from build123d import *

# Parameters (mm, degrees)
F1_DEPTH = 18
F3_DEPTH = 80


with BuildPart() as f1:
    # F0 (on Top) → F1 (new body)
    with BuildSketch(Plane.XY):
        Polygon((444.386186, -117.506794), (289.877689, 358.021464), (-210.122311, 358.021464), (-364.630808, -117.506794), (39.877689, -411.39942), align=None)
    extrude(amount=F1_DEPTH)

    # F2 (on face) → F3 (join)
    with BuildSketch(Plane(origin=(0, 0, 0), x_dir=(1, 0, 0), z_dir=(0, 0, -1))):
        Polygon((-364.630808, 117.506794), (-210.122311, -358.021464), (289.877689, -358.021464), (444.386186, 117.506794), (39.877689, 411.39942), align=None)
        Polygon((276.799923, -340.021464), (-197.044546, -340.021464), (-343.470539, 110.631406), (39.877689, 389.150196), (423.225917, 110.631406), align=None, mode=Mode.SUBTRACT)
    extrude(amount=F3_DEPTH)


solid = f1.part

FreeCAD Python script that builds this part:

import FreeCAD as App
import Part
import Sketcher
Q = App.Units.Quantity

doc = App.newDocument("Part")
body = doc.addObject("PartDesign::Body", "Body")

# Sketch on XY plane
sketch1 = body.newObject("Sketcher::SketchObject", "Sketch")
sketch1.AttachmentSupport = (doc.getObject("XY_Plane"), [""])
sketch1.MapMode = "FlatFace"
sketch1.addGeometry(Part.LineSegment(App.Vector(444, -118, 0), App.Vector(290, 358, 0)), False)
sketch1.addGeometry(Part.LineSegment(App.Vector(290, 358, 0), App.Vector(-210, 358, 0)), False)
sketch1.addGeometry(Part.LineSegment(App.Vector(-210, 358, 0), App.Vector(-365, -118, 0)), False)
sketch1.addGeometry(Part.LineSegment(App.Vector(-365, -118, 0), App.Vector(40, -411, 0)), False)
sketch1.addGeometry(Part.LineSegment(App.Vector(40, -411, 0), App.Vector(444, -118, 0)), False)
sketch1.addConstraint(Sketcher.Constraint("Coincident", 0, 2, 1, 1))
sketch1.addConstraint(Sketcher.Constraint("Coincident", 1, 2, 2, 1))
sketch1.addConstraint(Sketcher.Constraint("Coincident", 2, 2, 3, 1))
sketch1.addConstraint(Sketcher.Constraint("Coincident", 3, 2, 4, 1))
sketch1.addConstraint(Sketcher.Constraint("Coincident", 4, 2, 0, 1))
sketch1.addConstraint(Sketcher.Constraint("Horizontal", 1))
sketch1.addConstraint(Sketcher.Constraint("Horizontal", 2, 2, 4, 2))
sketch1.addConstraint(Sketcher.Constraint("Equal", 0, 2))
sketch1.addConstraint(Sketcher.Constraint("Equal", 2, 3))
sketch1.addConstraint(Sketcher.Constraint("Equal", 3, 4))
sketch1.addConstraint(Sketcher.Constraint("DistanceX", 1, 2, 1, 1, Q("500 mm")))
sketch1.addConstraint(Sketcher.Constraint("Angle", 0, Q("108 deg")))
sketch1.addConstraint(Sketcher.Constraint("Angle", 3, Q("-36 deg")))
sketch1.addConstraint(Sketcher.Constraint("DistanceX", -1, 1, 0, 2, Q("289.877689 mm")))
sketch1.addConstraint(Sketcher.Constraint("DistanceY", 3, 2, -1, 1, Q("411.39942 mm")))
pad1 = body.newObject("PartDesign::Pad", "Pad")
pad1.Profile = sketch1
pad1.Length = 18

# Sketch on XY plane
sketch2 = body.newObject("Sketcher::SketchObject", "Sketch001")
sketch2.AttachmentSupport = (doc.getObject("XY_Plane"), [""])
sketch2.MapMode = "FlatFace"
sketch2.addGeometry(Part.LineSegment(App.Vector(-365, -118, 0), App.Vector(-210, 358, 0)), False)
sketch2.addGeometry(Part.LineSegment(App.Vector(-210, 358, 0), App.Vector(290, 358, 0)), False)
sketch2.addGeometry(Part.LineSegment(App.Vector(290, 358, 0), App.Vector(444, -118, 0)), False)
sketch2.addGeometry(Part.LineSegment(App.Vector(444, -118, 0), App.Vector(40, -411, 0)), False)
sketch2.addGeometry(Part.LineSegment(App.Vector(40, -411, 0), App.Vector(-365, -118, 0)), False)
sketch2.addGeometry(Part.LineSegment(App.Vector(423, -111, 0), App.Vector(277, 340, 0)), False)
sketch2.addGeometry(Part.LineSegment(App.Vector(277, 340, 0), App.Vector(-197, 340, 0)), False)
sketch2.addGeometry(Part.LineSegment(App.Vector(-197, 340, 0), App.Vector(-343, -111, 0)), False)
sketch2.addGeometry(Part.LineSegment(App.Vector(-343, -111, 0), App.Vector(40, -389, 0)), False)
sketch2.addGeometry(Part.LineSegment(App.Vector(40, -389, 0), App.Vector(423, -111, 0)), False)
sketch2.addConstraint(Sketcher.Constraint("Coincident", 0, 2, 1, 1))
sketch2.addConstraint(Sketcher.Constraint("Coincident", 1, 2, 2, 1))
sketch2.addConstraint(Sketcher.Constraint("Coincident", 2, 2, 3, 1))
sketch2.addConstraint(Sketcher.Constraint("Coincident", 3, 2, 4, 1))
sketch2.addConstraint(Sketcher.Constraint("Coincident", 4, 2, 0, 1))
sketch2.addConstraint(Sketcher.Constraint("Coincident", 5, 2, 6, 1))
sketch2.addConstraint(Sketcher.Constraint("Coincident", 6, 2, 7, 1))
sketch2.addConstraint(Sketcher.Constraint("Coincident", 7, 2, 8, 1))
sketch2.addConstraint(Sketcher.Constraint("Coincident", 8, 2, 9, 1))
sketch2.addConstraint(Sketcher.Constraint("Coincident", 9, 2, 5, 1))
sketch2.addConstraint(Sketcher.Constraint("Horizontal", 1))
sketch2.addConstraint(Sketcher.Constraint("Horizontal", 6))
sketch2.addConstraint(Sketcher.Constraint("Parallel", 2, 5))
sketch2.addConstraint(Sketcher.Constraint("Parallel", 0, 7))
sketch2.addConstraint(Sketcher.Constraint("Parallel", 4, 8))
sketch2.addConstraint(Sketcher.Constraint("Parallel", 3, 9))
sketch2.addConstraint(Sketcher.Constraint("Horizontal", 2, 2, 4, 2))
sketch2.addConstraint(Sketcher.Constraint("Horizontal", 7, 2, 9, 2))
sketch2.addConstraint(Sketcher.Constraint("Vertical", 3, 2, 8, 2))
sketch2.addConstraint(Sketcher.Constraint("Equal", 0, 2))
sketch2.addConstraint(Sketcher.Constraint("Equal", 2, 3))
sketch2.addConstraint(Sketcher.Constraint("Equal", 3, 4))
sketch2.addConstraint(Sketcher.Constraint("Equal", 7, 8))
sketch2.addConstraint(Sketcher.Constraint("DistanceX", 1, 1, 1, 2, Q("500 mm")))
sketch2.addConstraint(Sketcher.Constraint("Angle", 0, Q("72 deg")))
sketch2.addConstraint(Sketcher.Constraint("Angle", 3, Q("-144 deg")))
sketch2.addConstraint(Sketcher.Constraint("DistanceY", 5, 2, 1, 2, Q("18 mm")))
sketch2.addConstraint(Sketcher.Constraint("DistanceX", 6, 2, 6, 1, Q("473.844469 mm")))
sketch2.addConstraint(Sketcher.Constraint("DistanceX", 0, 2, -1, 1, Q("210.122311 mm")))
sketch2.addConstraint(Sketcher.Constraint("DistanceY", 3, 2, -1, 1, Q("411.39942 mm")))
pad2 = body.newObject("PartDesign::Pad", "Pad001")
pad2.Profile = sketch2
pad2.Length = 80
pad2.Reversed = True

doc.recompute()
